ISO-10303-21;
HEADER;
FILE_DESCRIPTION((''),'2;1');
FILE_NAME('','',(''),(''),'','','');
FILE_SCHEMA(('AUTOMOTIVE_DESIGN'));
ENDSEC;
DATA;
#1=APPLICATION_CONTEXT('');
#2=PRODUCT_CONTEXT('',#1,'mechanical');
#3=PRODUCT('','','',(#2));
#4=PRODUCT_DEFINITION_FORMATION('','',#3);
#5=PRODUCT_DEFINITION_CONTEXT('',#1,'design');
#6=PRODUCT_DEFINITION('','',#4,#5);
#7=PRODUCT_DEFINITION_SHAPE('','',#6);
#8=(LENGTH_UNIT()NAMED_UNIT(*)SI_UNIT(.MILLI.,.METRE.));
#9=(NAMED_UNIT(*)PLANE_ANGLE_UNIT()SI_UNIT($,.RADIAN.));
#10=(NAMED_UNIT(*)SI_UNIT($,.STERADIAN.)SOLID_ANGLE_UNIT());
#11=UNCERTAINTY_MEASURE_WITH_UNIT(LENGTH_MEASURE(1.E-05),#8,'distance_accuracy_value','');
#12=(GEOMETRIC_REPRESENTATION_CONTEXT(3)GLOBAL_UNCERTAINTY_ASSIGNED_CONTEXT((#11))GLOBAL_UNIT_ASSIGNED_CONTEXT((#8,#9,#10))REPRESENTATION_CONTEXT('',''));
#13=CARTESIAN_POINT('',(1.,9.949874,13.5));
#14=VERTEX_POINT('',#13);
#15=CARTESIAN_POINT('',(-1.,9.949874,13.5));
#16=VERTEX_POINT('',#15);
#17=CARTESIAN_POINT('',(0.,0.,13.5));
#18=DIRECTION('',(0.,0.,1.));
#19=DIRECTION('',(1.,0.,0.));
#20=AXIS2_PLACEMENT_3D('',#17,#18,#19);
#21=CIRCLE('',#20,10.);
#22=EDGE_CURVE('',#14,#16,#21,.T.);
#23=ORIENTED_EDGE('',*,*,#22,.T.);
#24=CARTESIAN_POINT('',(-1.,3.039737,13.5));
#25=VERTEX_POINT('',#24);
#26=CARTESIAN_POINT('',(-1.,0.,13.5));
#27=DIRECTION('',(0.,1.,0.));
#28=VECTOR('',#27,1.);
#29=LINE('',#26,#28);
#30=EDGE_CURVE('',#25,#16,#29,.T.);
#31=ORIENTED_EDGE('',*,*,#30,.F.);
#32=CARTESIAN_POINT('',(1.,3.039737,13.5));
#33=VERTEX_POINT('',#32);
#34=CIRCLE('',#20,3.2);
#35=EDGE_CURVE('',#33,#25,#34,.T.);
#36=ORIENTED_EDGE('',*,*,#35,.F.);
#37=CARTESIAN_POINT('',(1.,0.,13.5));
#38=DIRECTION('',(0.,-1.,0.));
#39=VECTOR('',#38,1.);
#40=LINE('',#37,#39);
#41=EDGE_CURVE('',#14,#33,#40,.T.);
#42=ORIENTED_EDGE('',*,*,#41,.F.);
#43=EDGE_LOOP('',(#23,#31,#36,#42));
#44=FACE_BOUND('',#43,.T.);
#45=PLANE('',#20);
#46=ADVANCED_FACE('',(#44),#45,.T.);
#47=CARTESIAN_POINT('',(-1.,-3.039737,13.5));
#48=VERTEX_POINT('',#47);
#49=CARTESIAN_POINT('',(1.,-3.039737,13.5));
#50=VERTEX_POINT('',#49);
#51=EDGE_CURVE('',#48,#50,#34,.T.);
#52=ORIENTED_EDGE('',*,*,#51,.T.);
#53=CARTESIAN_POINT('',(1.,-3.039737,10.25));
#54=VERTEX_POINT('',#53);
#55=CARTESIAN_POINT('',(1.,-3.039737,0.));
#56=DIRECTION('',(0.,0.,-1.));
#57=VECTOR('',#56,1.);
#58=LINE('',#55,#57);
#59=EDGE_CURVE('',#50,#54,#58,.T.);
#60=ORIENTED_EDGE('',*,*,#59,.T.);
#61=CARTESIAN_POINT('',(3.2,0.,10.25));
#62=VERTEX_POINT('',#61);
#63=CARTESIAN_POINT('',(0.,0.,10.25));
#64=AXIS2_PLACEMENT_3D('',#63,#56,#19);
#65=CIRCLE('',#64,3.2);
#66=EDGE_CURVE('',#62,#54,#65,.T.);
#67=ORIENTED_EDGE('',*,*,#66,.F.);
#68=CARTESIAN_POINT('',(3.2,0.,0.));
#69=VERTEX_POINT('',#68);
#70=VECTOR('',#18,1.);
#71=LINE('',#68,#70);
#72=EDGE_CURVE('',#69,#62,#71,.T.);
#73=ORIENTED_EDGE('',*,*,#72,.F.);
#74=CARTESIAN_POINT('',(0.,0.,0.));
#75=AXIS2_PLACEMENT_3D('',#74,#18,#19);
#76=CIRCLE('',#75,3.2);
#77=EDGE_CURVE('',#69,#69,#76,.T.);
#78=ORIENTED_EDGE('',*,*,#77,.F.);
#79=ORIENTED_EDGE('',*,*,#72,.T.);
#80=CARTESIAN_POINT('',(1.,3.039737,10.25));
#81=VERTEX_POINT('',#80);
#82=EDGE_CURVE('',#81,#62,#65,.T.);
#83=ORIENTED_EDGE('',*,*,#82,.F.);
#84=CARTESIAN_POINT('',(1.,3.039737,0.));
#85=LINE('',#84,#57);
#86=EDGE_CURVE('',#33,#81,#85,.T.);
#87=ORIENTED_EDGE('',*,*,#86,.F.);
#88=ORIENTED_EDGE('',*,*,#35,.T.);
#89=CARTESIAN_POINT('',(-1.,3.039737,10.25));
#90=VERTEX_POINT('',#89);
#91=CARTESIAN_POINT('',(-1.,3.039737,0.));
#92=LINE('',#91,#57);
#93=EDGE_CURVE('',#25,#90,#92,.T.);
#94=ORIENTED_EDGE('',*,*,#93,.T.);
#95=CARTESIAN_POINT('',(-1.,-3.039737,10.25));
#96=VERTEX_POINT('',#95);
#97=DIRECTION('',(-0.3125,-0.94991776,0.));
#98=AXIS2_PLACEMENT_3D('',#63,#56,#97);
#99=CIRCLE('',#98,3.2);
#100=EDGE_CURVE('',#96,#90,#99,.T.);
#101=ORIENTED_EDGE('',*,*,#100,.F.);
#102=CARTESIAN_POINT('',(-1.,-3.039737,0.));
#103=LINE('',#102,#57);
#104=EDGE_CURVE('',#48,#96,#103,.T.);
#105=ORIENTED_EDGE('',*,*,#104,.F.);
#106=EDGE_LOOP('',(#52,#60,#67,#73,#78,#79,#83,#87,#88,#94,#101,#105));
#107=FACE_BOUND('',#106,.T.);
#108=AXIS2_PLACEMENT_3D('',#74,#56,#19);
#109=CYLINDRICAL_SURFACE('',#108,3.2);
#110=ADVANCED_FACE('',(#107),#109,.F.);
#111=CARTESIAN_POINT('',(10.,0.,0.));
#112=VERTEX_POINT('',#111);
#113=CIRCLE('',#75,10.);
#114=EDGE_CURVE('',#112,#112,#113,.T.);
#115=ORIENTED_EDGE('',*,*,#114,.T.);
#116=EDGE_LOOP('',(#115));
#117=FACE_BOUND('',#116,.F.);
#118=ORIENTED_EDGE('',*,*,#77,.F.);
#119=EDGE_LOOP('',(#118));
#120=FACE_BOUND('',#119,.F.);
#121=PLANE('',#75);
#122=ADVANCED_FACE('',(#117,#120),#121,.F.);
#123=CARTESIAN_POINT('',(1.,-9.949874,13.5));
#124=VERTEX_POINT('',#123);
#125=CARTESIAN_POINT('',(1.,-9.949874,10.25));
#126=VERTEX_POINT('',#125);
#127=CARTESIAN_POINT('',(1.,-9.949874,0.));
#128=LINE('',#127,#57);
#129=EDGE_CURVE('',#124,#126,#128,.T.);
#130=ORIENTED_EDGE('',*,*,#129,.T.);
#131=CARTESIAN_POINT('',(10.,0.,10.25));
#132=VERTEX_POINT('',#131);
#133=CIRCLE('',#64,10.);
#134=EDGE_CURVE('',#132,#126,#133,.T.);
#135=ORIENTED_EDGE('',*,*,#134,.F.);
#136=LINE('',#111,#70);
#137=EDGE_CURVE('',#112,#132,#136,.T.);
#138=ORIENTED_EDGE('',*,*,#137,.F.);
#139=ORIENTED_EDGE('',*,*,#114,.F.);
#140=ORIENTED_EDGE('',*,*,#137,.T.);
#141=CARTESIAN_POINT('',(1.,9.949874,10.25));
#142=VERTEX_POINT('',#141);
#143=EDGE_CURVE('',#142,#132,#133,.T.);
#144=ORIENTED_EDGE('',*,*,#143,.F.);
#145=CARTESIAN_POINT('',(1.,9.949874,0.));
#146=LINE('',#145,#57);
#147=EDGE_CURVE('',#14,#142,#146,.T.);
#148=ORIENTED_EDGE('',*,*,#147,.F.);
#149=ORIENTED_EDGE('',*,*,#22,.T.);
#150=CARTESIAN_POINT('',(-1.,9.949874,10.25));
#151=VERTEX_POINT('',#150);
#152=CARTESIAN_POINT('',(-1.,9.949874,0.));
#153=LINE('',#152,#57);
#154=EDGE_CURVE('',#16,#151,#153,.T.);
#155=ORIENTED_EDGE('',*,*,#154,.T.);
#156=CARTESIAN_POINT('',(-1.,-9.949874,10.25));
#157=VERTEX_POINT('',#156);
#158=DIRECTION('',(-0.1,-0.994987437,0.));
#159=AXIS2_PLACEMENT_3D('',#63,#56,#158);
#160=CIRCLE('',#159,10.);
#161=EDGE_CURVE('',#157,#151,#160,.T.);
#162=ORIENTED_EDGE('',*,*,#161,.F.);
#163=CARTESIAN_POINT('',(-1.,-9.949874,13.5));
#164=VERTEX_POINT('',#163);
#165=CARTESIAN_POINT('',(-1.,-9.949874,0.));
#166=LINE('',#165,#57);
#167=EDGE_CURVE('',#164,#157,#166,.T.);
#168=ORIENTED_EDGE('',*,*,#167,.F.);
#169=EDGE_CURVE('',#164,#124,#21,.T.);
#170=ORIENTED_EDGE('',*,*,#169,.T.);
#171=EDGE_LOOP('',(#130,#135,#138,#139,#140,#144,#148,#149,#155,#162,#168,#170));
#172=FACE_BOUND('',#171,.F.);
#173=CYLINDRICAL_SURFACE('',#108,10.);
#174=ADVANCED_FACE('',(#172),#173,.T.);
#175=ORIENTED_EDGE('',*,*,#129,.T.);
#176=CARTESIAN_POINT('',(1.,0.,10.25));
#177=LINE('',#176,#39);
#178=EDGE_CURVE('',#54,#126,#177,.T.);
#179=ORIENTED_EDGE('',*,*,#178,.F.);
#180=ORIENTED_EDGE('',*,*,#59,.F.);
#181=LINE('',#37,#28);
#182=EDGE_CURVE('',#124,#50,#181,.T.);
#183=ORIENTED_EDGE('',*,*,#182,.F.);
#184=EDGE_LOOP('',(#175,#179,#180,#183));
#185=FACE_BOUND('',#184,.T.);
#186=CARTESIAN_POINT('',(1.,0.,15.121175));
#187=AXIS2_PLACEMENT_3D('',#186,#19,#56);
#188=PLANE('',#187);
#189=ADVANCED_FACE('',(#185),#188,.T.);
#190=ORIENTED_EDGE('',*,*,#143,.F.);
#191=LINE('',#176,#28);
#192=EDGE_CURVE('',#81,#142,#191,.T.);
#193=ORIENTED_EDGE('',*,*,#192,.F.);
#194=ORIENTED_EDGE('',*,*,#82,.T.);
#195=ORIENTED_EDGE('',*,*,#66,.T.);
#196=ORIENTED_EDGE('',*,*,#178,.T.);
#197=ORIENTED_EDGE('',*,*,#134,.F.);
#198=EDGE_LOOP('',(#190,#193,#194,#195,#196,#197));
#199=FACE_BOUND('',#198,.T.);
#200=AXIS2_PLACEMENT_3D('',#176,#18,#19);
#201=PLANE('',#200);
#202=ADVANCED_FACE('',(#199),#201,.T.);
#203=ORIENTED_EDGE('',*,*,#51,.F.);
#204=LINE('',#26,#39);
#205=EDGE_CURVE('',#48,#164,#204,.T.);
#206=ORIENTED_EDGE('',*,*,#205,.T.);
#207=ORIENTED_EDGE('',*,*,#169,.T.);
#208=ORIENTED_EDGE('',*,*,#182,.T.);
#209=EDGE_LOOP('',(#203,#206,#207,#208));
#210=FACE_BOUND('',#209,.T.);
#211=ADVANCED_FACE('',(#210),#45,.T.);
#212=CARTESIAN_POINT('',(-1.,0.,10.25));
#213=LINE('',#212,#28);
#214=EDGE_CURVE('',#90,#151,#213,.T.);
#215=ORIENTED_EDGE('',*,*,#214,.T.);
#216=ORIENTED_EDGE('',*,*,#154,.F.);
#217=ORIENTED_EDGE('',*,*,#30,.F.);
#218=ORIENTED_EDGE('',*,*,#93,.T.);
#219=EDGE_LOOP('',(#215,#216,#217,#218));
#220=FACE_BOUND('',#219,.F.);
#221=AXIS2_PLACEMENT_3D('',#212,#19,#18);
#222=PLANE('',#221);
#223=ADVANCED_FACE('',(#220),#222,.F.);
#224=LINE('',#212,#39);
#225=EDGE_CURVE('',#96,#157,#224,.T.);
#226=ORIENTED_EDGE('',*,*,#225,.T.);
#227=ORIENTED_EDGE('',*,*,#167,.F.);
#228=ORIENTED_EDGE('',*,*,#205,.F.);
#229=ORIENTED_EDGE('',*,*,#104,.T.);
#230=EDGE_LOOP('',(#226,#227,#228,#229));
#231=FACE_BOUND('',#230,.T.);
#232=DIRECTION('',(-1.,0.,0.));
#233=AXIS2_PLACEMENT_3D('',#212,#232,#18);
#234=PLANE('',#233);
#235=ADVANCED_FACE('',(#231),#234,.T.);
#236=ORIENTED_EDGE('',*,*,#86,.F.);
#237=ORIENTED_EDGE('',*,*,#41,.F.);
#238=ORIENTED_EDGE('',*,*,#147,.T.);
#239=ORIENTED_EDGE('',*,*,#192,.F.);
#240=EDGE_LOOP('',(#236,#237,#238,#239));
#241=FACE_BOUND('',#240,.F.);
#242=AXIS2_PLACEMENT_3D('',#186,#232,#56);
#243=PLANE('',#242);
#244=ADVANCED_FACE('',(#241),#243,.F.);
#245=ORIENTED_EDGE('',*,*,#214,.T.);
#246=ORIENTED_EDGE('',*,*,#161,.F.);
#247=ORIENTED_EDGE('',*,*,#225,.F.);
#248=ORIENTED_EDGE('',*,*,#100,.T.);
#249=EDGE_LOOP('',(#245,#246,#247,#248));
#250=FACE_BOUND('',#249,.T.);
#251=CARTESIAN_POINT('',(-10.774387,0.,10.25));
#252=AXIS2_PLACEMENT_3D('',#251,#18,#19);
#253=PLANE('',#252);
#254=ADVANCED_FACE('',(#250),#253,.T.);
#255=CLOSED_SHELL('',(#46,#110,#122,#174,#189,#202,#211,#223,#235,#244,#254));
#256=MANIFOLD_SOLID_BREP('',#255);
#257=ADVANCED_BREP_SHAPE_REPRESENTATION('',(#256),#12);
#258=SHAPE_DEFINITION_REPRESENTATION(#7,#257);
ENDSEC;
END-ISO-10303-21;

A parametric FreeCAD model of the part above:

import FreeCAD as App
import Part
import Sketcher


def add_polygon(sketch, points):
    """Adds a closed chain of lines whose ends are joined by coincident constraints."""
    first, n = sketch.GeometryCount, len(points)
    for a, b in zip(points, points[1:] + points[:1]):
        sketch.addGeometry(Part.LineSegment(App.Vector(*a, 0), App.Vector(*b, 0)), False)
    for i in range(n):
        sketch.addConstraint(Sketcher.Constraint("Coincident", first + i, 2, first + (i + 1) % n, 1))

doc = App.newDocument("Part")
body = doc.addObject("PartDesign::Body", "Body")

sketch1 = body.newObject("Sketcher::SketchObject", "Sketch")
sketch1.AttachmentSupport = (doc.getObject("XY_Plane"), [""])
sketch1.MapMode = "FlatFace"
sketch1.addGeometry(Part.Circle(App.Vector(0, 0, 0), App.Vector(0, 0, 1), 10), False)
sketch1.addGeometry(Part.Circle(App.Vector(0, 0, 0), App.Vector(0, 0, 1), 3.2), False)
sketch1.addConstraint(Sketcher.Constraint("Coincident", 0, 3, -1, 1))
sketch1.addConstraint(Sketcher.Constraint("Coincident", 1, 3, -1, 1))
sketch1.addConstraint(Sketcher.Constraint("Diameter", 0, 20.0))
sketch1.addConstraint(Sketcher.Constraint("Diameter", 1, 6.4))
pad1 = body.newObject("PartDesign::Pad", "Pad")
pad1.Profile = sketch1
pad1.Length = 13.5

sketch2 = body.newObject("Sketcher::SketchObject", "Sketch001")
sketch2.AttachmentSupport = (doc.getObject("XZ_Plane"), [""])
sketch2.MapMode = "FlatFace"
add_polygon(sketch2, [(-1, 10.25), (-1, 15.121175), (-10.774387, 15.121175), (-10.774387, 10.25)])
add_polygon(sketch2, [(1, 15.121175), (1, 10.25), (10.738912, 10.25), (10.738912, 15.121175)])
sketch2.addConstraint(Sketcher.Constraint("Vertical", 0))
sketch2.addConstraint(Sketcher.Constraint("Horizontal", 1))
sketch2.addConstraint(Sketcher.Constraint("Vertical", 2))
sketch2.addConstraint(Sketcher.Constraint("Horizontal", 3))
sketch2.addConstraint(Sketcher.Constraint("Vertical", 4))
sketch2.addConstraint(Sketcher.Constraint("Horizontal", 5))
sketch2.addConstraint(Sketcher.Constraint("Vertical", 6))
sketch2.addConstraint(Sketcher.Constraint("Horizontal", 7))
sketch2.addConstraint(Sketcher.Constraint("Symmetric", 3, 2, 4, 2, -2))
sketch2.addConstraint(Sketcher.Constraint("Horizontal", 1, 2, 6, 2))
sketch2.addConstraint(Sketcher.Constraint("DistanceX", 0, 2, -1, 1, 1.0))
sketch2.addConstraint(Sketcher.Constraint("DistanceY", -1, 1, 2, 2, 10.25))
sketch2.addConstraint(Sketcher.Constraint("DistanceX", 5, 1, 5, 2, 9.738912))
sketch2.addConstraint(Sketcher.Constraint("DistanceX", 2, 2, 5, 2, 21.513299))
sketch2.addConstraint(Sketcher.Constraint("DistanceY", 0, 1, 0, 2, 4.871175))
pocket1 = body.newObject("PartDesign::Pocket", "Pocket")
pocket1.Profile = sketch2
pocket1.Length = 25

sketch3 = body.newObject("Sketcher::SketchObject", "Sketch002")
sketch3.AttachmentSupport = (doc.getObject("XZ_Plane"), [""])
sketch3.MapMode = "FlatFace"
add_polygon(sketch3, [(-1, 10.25), (-1, 15.121175), (-10.774387, 15.121175), (-10.774387, 10.25)])
add_polygon(sketch3, [(1, 15.121175), (1, 10.25), (10.738912, 10.25), (10.738912, 15.121175)])
sketch3.addConstraint(Sketcher.Constraint("Vertical", 0))
sketch3.addConstraint(Sketcher.Constraint("Horizontal", 1))
sketch3.addConstraint(Sketcher.Constraint("Vertical", 2))
sketch3.addConstraint(Sketcher.Constraint("Horizontal", 3))
sketch3.addConstraint(Sketcher.Constraint("Vertical", 4))
sketch3.addConstraint(Sketcher.Constraint("Horizontal", 5))
sketch3.addConstraint(Sketcher.Constraint("Vertical", 6))
sketch3.addConstraint(Sketcher.Constraint("Horizontal", 7))
sketch3.addConstraint(Sketcher.Constraint("Symmetric", 3, 2, 4, 2, -2))
sketch3.addConstraint(Sketcher.Constraint("Horizontal", 1, 2, 6, 2))
sketch3.addConstraint(Sketcher.Constraint("DistanceX", 0, 2, -1, 1, 1.0))
sketch3.addConstraint(Sketcher.Constraint("DistanceY", -1, 1, 2, 2, 10.25))
sketch3.addConstraint(Sketcher.Constraint("DistanceX", 5, 1, 5, 2, 9.738912))
sketch3.addConstraint(Sketcher.Constraint("DistanceX", 2, 2, 5, 2, 21.513299))
sketch3.addConstraint(Sketcher.Constraint("DistanceY", 0, 1, 0, 2, 4.871175))
pocket2 = body.newObject("PartDesign::Pocket", "Pocket001")
pocket2.Profile = sketch3
pocket2.Length = 11.4
pocket2.Reversed = True

doc.recompute()
